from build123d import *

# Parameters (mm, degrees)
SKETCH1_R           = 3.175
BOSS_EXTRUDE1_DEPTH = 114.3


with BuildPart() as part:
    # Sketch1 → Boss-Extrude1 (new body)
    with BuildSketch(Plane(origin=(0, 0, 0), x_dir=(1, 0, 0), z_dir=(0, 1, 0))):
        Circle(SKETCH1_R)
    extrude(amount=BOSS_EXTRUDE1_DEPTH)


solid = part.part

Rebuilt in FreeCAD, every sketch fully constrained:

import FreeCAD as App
import Part
import Sketcher

V = App.Vector
Q = App.Units.Quantity

doc = App.newDocument("Part")
body = doc.addObject("PartDesign::Body", "Body")

# Sketch on XZ plane
sketch1 = body.newObject("Sketcher::SketchObject", "Sketch")
sketch1.AttachmentSupport = (doc.getObject("XZ_Plane"), [""])
sketch1.MapMode = "FlatFace"
sketch1.addGeometry(Part.Circle(V(0, 0, 0), V(0, 0, 1), 3.175), False)
sketch1.addConstraint([
    Sketcher.Constraint("Coincident", 0, 3, -1, 1),
    Sketcher.Constraint("Diameter", 0, Q("0.25 in")),
])
pad1 = body.newObject("PartDesign::Pad", "Pad")
pad1.Profile = sketch1
pad1.Length = Q("4.5 in")
pad1.Reversed = True

doc.recompute()
